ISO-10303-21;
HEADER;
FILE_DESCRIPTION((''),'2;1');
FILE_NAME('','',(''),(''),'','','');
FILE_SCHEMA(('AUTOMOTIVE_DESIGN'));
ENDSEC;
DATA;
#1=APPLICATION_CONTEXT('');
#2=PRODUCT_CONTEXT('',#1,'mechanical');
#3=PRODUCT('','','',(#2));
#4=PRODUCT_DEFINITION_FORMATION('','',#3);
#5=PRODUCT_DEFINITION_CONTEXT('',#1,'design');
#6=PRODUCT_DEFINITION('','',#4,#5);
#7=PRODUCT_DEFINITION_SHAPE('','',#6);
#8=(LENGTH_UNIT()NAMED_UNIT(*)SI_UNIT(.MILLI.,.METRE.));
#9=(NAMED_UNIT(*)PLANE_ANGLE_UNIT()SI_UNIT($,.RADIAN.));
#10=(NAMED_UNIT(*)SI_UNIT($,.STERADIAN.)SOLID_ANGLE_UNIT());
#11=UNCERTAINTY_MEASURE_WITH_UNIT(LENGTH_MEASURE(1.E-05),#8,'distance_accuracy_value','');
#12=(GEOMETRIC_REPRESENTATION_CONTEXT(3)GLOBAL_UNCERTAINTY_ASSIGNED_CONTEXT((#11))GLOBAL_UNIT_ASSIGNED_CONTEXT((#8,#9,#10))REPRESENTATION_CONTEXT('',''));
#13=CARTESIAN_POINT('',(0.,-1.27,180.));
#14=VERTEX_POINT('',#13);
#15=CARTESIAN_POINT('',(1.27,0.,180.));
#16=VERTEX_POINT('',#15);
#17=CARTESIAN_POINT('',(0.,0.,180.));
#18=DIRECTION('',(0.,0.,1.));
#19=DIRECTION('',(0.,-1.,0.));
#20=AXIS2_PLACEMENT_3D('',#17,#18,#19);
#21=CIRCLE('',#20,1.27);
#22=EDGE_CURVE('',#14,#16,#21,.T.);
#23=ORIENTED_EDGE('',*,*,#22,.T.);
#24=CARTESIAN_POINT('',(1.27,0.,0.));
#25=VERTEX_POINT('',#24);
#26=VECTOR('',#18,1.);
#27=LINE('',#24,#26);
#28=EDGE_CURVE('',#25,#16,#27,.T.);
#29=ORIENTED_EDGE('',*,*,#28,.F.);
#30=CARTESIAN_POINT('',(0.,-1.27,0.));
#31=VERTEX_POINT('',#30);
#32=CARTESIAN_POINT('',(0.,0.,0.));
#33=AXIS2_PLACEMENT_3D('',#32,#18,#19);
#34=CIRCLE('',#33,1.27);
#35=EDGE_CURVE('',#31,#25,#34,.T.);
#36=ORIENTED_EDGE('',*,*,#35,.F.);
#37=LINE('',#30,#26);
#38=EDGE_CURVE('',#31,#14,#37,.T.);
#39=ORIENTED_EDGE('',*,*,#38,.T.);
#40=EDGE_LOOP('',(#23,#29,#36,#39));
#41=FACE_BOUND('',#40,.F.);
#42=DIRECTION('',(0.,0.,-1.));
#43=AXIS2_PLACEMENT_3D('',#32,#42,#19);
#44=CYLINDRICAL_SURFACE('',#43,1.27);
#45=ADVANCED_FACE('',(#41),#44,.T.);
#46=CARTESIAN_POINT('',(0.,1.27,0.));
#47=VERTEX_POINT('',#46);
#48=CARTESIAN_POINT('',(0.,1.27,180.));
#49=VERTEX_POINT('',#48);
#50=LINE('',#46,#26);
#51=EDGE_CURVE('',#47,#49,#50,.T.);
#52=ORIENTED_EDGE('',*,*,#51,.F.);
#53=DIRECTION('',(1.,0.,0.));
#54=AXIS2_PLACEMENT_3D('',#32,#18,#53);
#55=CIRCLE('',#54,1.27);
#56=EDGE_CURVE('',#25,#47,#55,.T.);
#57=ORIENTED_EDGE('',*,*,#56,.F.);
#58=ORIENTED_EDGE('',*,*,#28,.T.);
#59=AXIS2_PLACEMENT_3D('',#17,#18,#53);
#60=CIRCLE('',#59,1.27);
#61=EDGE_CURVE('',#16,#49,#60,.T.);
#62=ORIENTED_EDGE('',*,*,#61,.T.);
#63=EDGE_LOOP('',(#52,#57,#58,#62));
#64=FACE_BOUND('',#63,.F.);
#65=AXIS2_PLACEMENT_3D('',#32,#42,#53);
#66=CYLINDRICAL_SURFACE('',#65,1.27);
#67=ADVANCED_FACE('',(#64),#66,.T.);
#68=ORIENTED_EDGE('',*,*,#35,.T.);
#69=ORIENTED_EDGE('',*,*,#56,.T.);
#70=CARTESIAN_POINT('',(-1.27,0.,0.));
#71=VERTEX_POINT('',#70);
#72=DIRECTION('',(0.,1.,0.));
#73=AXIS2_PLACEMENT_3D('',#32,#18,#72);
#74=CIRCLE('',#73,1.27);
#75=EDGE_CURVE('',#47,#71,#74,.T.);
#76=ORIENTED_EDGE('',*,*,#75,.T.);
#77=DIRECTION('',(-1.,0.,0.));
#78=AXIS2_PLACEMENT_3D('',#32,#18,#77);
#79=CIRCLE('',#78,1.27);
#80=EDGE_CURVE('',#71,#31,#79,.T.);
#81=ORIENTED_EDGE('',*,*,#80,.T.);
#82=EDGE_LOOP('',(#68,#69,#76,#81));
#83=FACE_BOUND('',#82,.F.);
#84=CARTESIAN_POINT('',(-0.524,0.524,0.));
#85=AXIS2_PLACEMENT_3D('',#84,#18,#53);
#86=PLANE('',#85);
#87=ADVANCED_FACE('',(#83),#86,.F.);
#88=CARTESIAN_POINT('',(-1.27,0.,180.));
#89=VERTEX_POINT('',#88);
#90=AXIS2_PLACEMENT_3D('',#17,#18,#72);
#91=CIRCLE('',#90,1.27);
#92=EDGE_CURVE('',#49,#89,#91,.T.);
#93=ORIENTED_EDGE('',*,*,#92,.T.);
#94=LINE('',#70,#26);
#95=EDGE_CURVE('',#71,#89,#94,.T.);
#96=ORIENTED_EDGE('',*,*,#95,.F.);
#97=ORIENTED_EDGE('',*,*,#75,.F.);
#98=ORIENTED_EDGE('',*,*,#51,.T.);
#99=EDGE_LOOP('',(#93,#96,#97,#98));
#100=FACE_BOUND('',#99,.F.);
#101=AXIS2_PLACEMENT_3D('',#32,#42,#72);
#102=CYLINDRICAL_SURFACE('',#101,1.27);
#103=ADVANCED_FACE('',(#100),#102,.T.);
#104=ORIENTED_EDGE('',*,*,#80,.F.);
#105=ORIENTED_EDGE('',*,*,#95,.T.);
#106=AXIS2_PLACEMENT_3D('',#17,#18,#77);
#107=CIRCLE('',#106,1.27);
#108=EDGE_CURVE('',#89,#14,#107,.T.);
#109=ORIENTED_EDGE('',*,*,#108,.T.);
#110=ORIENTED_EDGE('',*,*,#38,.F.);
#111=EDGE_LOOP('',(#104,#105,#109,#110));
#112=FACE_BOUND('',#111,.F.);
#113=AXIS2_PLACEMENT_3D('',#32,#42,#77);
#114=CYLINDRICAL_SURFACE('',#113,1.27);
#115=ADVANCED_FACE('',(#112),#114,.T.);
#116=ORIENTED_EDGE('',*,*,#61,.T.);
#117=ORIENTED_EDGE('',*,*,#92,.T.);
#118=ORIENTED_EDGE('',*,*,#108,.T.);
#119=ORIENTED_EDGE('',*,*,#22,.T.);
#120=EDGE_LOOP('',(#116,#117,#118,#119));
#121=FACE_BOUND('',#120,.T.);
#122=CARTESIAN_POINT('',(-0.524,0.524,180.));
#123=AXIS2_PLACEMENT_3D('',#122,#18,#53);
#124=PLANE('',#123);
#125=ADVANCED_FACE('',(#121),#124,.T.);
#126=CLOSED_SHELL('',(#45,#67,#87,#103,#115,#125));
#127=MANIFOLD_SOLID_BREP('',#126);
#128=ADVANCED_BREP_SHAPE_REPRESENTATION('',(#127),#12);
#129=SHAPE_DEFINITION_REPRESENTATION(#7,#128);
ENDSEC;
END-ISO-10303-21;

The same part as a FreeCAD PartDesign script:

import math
import FreeCAD as App
import Part
import Sketcher
from FreeCAD import Vector
Q = App.Units.Quantity

doc = App.newDocument("Part")
body = doc.addObject("PartDesign::Body", "Body")

sketch1 = body.newObject("Sketcher::SketchObject", "Sketch")
sketch1.AttachmentSupport = (doc.getObject("XY_Plane"), [""])
sketch1.MapMode = "FlatFace"
sketch1.addGeometry([
    Part.ArcOfCircle(Part.Circle(Vector(0, 0, 0), Vector(0, 0, 1), 1.3), math.radians(90), math.radians(180)),
    Part.ArcOfCircle(Part.Circle(Vector(0, 0, 0), Vector(0, 0, 1), 1.3), math.radians(180), math.radians(270)),
    Part.ArcOfCircle(Part.Circle(Vector(0, 0, 0), Vector(0, 0, 1), 1.3), math.radians(-90), math.radians(0)),
    Part.ArcOfCircle(Part.Circle(Vector(0, 0, 0), Vector(0, 0, 1), 1.3), math.radians(0), math.radians(90)),
], False)
sketch1.addConstraint([
    Sketcher.Constraint("Tangent", 0, 2, 1, 1),
    Sketcher.Constraint("Tangent", 1, 2, 2, 1),
    Sketcher.Constraint("Tangent", 2, 2, 3, 1),
    Sketcher.Constraint("Tangent", 3, 2, 0, 1),
    Sketcher.Constraint("Coincident", 0, 3, -1, 1),
    Sketcher.Constraint("Equal", 0, 1),
    Sketcher.Constraint("PointOnObject", 0, 2, -1),
    Sketcher.Constraint("PointOnObject", 1, 2, -2),
    Sketcher.Constraint("PointOnObject", 2, 2, -1),
    Sketcher.Constraint("PointOnObject", 3, 2, -2),
    Sketcher.Constraint("Radius", 0, Q("1.27 mm")),
])
pad1 = body.newObject("PartDesign::Pad", "Pad")
pad1.Profile = sketch1
pad1.Length = 180

doc.recompute()
